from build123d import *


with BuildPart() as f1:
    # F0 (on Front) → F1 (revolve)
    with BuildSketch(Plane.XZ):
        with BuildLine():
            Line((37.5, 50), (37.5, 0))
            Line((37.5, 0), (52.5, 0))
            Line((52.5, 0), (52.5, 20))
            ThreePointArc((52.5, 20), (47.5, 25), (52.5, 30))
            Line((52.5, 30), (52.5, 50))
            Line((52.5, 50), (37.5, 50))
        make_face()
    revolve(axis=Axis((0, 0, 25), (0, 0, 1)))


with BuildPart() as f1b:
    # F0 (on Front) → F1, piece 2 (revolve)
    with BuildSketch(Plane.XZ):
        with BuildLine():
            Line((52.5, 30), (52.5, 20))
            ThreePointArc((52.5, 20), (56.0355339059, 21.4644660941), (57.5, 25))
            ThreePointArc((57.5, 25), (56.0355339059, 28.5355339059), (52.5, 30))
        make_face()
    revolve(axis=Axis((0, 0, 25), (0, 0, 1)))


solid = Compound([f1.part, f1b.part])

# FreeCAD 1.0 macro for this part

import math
import FreeCAD as App
import Part
import Sketcher
from FreeCAD import Vector
Q = App.Units.Quantity

doc = App.newDocument("Part")
body = doc.addObject("PartDesign::Body", "Body")

sketch1 = body.newObject("Sketcher::SketchObject", "Sketch")
sketch1.AttachmentSupport = (doc.getObject("XZ_Plane"), [""])
sketch1.MapMode = "FlatFace"
sketch1.addGeometry(Part.LineSegment(Vector(38, 50, 0), Vector(38, 0, 0)), False)
sketch1.addGeometry(Part.LineSegment(Vector(38, 0, 0), Vector(52, 0, 0)), False)
sketch1.addGeometry(Part.LineSegment(Vector(52, 0, 0), Vector(52, 20, 0)), False)
sketch1.addGeometry(Part.ArcOfCircle(Part.Circle(Vector(52, 25, 0), Vector(0, 0, 1), 5), math.radians(90), math.radians(270)), False)
sketch1.addGeometry(Part.LineSegment(Vector(52, 30, 0), Vector(52, 50, 0)), False)
sketch1.addGeometry(Part.LineSegment(Vector(52, 50, 0), Vector(38, 50, 0)), False)
sketch1.addConstraint(Sketcher.Constraint("Coincident", 0, 2, 1, 1))
sketch1.addConstraint(Sketcher.Constraint("Coincident", 1, 2, 2, 1))
sketch1.addConstraint(Sketcher.Constraint("Coincident", 2, 2, 3, 2))
sketch1.addConstraint(Sketcher.Constraint("Coincident", 3, 1, 4, 1))
sketch1.addConstraint(Sketcher.Constraint("Coincident", 4, 2, 5, 1))
sketch1.addConstraint(Sketcher.Constraint("Coincident", 5, 2, 0, 1))
sketch1.addConstraint(Sketcher.Constraint("Vertical", 0))
sketch1.addConstraint(Sketcher.Constraint("Horizontal", 1))
sketch1.addConstraint(Sketcher.Constraint("Vertical", 2))
sketch1.addConstraint(Sketcher.Constraint("Vertical", 4))
sketch1.addConstraint(Sketcher.Constraint("Horizontal", 5))
sketch1.addConstraint(Sketcher.Constraint("PointOnObject", 0, 2, -1))
sketch1.addConstraint(Sketcher.Constraint("Vertical", 3, 3, 1, 2))
sketch1.addConstraint(Sketcher.Constraint("Vertical", 2, 2, 3, 1))
sketch1.addConstraint(Sketcher.Constraint("Equal", 2, 4))
sketch1.addConstraint(Sketcher.Constraint("Radius", 3, Q("5 mm")))
sketch1.addConstraint(Sketcher.Constraint("DistanceX", 1, 1, 1, 2, Q("15 mm")))
sketch1.addConstraint(Sketcher.Constraint("DistanceY", 0, 2, 0, 1, Q("50 mm")))
sketch1.addConstraint(Sketcher.Constraint("DistanceX", -1, 1, 3, 3, Q("52.5 mm")))
revolution = body.newObject("PartDesign::Revolution", "Revolution")
revolution.Profile = sketch1
revolution.ReferenceAxis = (sketch1, ["V_Axis"])
revolution.Angle = 360
body2 = doc.addObject("PartDesign::Body", "Body001")

sketch2 = body2.newObject("Sketcher::SketchObject", "Sketch001")
sketch2.AttachmentSupport = (doc.getObject("XZ_Plane001"), [""])
sketch2.MapMode = "FlatFace"
sketch2.addGeometry(Part.LineSegment(Vector(52, 30, 0), Vector(52, 20, 0)), False)
sketch2.addGeometry(Part.ArcOfCircle(Part.Circle(Vector(52, 25, 0), Vector(0, 0, 1), 5), math.radians(-90), math.radians(0)), False)
sketch2.addGeometry(Part.ArcOfCircle(Part.Circle(Vector(52, 25, 0), Vector(0, 0, 1), 5), math.radians(0), math.radians(90)), False)
sketch2.addConstraint(Sketcher.Constraint("Coincident", 0, 2, 1, 1))
sketch2.addConstraint(Sketcher.Constraint("Tangent", 1, 2, 2, 1))
sketch2.addConstraint(Sketcher.Constraint("Coincident", 2, 2, 0, 1))
sketch2.addConstraint(Sketcher.Constraint("Vertical", 0))
sketch2.addConstraint(Sketcher.Constraint("Equal", 1, 2))
sketch2.addConstraint(Sketcher.Constraint("Horizontal", 2, 3, 1, 2))
sketch2.addConstraint(Sketcher.Constraint("Vertical", 2, 3, 0, 2))
sketch2.addConstraint(Sketcher.Constraint("Radius", 1, Q("5 mm")))
sketch2.addConstraint(Sketcher.Constraint("DistanceY", -1, 1, 1, 3, Q("25 mm")))
sketch2.addConstraint(Sketcher.Constraint("DistanceX", -1, 1, 1, 3, Q("52.5 mm")))
revolution2 = body2.newObject("PartDesign::Revolution", "Revolution001")
revolution2.Profile = sketch2
revolution2.ReferenceAxis = (sketch2, ["V_Axis"])
revolution2.Angle = 360

doc.recompute()
